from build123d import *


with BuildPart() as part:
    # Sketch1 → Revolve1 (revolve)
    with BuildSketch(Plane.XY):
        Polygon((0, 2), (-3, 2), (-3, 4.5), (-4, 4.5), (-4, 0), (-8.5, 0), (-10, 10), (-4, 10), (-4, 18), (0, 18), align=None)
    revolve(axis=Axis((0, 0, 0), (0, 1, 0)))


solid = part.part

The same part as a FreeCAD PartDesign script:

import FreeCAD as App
import Part
import Sketcher
from FreeCAD import Vector
Q = App.Units.Quantity

doc = App.newDocument("Part")
params = doc.addObject("Spreadsheet::Sheet", "Params")
for row, (alias, value) in enumerate([
    ("sketch1_width", "3 mm"),
    ("sketch1_width2", "4 mm"),
    ("sketch1_width3", "6 mm"),
    ("sketch1_height", "16 mm"),
    ("sketch1_height2", "8 mm"),
    ("revolution_angle", "360 deg"),
], start=1):
    params.set(f"A{row}", alias)
    params.set(f"B{row}", "=" + value)
    params.setAlias(f"B{row}", alias)

body = doc.addObject("PartDesign::Body", "Body")

sketch1 = body.newObject("Sketcher::SketchObject", "Sketch")
sketch1.AttachmentSupport = (doc.getObject("XY_Plane"), [""])
sketch1.MapMode = "FlatFace"
sketch1.addGeometry([
    Part.LineSegment(Vector(-3, 2, 0), Vector(0, 2, 0)),
    Part.LineSegment(Vector(0, 2, 0), Vector(0, 18, 0)),
    Part.LineSegment(Vector(0, 18, 0), Vector(-4, 18, 0)),
    Part.LineSegment(Vector(-4, 18, 0), Vector(-4, 10, 0)),
    Part.LineSegment(Vector(-4, 10, 0), Vector(-10, 10, 0)),
    Part.LineSegment(Vector(-10, 10, 0), Vector(-8.5, 0, 0)),
    Part.LineSegment(Vector(-8.5, 0, 0), Vector(-4, 0, 0)),
    Part.LineSegment(Vector(-4, 0, 0), Vector(-4, 4.5, 0)),
    Part.LineSegment(Vector(-4, 4.5, 0), Vector(-3, 4.5, 0)),
    Part.LineSegment(Vector(-3, 4.5, 0), Vector(-3, 2, 0)),
], False)
sketch1.addConstraint([
    Sketcher.Constraint("Coincident", 0, 2, 1, 1),
    Sketcher.Constraint("Coincident", 1, 2, 2, 1),
    Sketcher.Constraint("Coincident", 2, 2, 3, 1),
    Sketcher.Constraint("Coincident", 3, 2, 4, 1),
    Sketcher.Constraint("Coincident", 4, 2, 5, 1),
    Sketcher.Constraint("Coincident", 5, 2, 6, 1),
    Sketcher.Constraint("Coincident", 6, 2, 7, 1),
    Sketcher.Constraint("Coincident", 7, 2, 8, 1),
    Sketcher.Constraint("Coincident", 8, 2, 9, 1),
    Sketcher.Constraint("Coincident", 9, 2, 0, 1),
    Sketcher.Constraint("Horizontal", 0),
    Sketcher.Constraint("Vertical", 1),
    Sketcher.Constraint("Horizontal", 2),
    Sketcher.Constraint("Vertical", 3),
    Sketcher.Constraint("Horizontal", 4),
    Sketcher.Constraint("Horizontal", 6),
    Sketcher.Constraint("Vertical", 7),
    Sketcher.Constraint("Horizontal", 8),
    Sketcher.Constraint("Vertical", 9),
    Sketcher.Constraint("PointOnObject", 0, 2, -2),
    Sketcher.Constraint("PointOnObject", 5, 2, -1),
    Sketcher.Constraint("Vertical", 3, 2, 6, 2),
    Sketcher.Constraint("Equal", 6, 7),
    Sketcher.Constraint("DistanceX", 0, 1, 0, 2, Q("3 mm")),
    Sketcher.Constraint("DistanceX", 2, 2, 2, 1, Q("4 mm")),
    Sketcher.Constraint("DistanceX", 4, 2, 4, 1, Q("6 mm")),
    Sketcher.Constraint("DistanceY", 1, 1, 1, 2, Q("16 mm")),
    Sketcher.Constraint("DistanceY", 3, 2, 3, 1, Q("8 mm")),
    Sketcher.Constraint("DistanceX", 6, 1, 6, 2, Q("4.5 mm")),
    Sketcher.Constraint("DistanceY", 9, 2, 9, 1, Q("2.5 mm")),
])
sketch1.setExpression("Constraints[23]", "Params.sketch1_width")
sketch1.setExpression("Constraints[24]", "Params.sketch1_width2")
sketch1.setExpression("Constraints[25]", "Params.sketch1_width3")
sketch1.setExpression("Constraints[26]", "Params.sketch1_height")
sketch1.setExpression("Constraints[27]", "Params.sketch1_height2")
revolution = body.newObject("PartDesign::Revolution", "Revolution")
revolution.Profile = sketch1
revolution.ReferenceAxis = (sketch1, ["V_Axis"])
revolution.setExpression("Angle", "Params.revolution_angle")

doc.recompute()
